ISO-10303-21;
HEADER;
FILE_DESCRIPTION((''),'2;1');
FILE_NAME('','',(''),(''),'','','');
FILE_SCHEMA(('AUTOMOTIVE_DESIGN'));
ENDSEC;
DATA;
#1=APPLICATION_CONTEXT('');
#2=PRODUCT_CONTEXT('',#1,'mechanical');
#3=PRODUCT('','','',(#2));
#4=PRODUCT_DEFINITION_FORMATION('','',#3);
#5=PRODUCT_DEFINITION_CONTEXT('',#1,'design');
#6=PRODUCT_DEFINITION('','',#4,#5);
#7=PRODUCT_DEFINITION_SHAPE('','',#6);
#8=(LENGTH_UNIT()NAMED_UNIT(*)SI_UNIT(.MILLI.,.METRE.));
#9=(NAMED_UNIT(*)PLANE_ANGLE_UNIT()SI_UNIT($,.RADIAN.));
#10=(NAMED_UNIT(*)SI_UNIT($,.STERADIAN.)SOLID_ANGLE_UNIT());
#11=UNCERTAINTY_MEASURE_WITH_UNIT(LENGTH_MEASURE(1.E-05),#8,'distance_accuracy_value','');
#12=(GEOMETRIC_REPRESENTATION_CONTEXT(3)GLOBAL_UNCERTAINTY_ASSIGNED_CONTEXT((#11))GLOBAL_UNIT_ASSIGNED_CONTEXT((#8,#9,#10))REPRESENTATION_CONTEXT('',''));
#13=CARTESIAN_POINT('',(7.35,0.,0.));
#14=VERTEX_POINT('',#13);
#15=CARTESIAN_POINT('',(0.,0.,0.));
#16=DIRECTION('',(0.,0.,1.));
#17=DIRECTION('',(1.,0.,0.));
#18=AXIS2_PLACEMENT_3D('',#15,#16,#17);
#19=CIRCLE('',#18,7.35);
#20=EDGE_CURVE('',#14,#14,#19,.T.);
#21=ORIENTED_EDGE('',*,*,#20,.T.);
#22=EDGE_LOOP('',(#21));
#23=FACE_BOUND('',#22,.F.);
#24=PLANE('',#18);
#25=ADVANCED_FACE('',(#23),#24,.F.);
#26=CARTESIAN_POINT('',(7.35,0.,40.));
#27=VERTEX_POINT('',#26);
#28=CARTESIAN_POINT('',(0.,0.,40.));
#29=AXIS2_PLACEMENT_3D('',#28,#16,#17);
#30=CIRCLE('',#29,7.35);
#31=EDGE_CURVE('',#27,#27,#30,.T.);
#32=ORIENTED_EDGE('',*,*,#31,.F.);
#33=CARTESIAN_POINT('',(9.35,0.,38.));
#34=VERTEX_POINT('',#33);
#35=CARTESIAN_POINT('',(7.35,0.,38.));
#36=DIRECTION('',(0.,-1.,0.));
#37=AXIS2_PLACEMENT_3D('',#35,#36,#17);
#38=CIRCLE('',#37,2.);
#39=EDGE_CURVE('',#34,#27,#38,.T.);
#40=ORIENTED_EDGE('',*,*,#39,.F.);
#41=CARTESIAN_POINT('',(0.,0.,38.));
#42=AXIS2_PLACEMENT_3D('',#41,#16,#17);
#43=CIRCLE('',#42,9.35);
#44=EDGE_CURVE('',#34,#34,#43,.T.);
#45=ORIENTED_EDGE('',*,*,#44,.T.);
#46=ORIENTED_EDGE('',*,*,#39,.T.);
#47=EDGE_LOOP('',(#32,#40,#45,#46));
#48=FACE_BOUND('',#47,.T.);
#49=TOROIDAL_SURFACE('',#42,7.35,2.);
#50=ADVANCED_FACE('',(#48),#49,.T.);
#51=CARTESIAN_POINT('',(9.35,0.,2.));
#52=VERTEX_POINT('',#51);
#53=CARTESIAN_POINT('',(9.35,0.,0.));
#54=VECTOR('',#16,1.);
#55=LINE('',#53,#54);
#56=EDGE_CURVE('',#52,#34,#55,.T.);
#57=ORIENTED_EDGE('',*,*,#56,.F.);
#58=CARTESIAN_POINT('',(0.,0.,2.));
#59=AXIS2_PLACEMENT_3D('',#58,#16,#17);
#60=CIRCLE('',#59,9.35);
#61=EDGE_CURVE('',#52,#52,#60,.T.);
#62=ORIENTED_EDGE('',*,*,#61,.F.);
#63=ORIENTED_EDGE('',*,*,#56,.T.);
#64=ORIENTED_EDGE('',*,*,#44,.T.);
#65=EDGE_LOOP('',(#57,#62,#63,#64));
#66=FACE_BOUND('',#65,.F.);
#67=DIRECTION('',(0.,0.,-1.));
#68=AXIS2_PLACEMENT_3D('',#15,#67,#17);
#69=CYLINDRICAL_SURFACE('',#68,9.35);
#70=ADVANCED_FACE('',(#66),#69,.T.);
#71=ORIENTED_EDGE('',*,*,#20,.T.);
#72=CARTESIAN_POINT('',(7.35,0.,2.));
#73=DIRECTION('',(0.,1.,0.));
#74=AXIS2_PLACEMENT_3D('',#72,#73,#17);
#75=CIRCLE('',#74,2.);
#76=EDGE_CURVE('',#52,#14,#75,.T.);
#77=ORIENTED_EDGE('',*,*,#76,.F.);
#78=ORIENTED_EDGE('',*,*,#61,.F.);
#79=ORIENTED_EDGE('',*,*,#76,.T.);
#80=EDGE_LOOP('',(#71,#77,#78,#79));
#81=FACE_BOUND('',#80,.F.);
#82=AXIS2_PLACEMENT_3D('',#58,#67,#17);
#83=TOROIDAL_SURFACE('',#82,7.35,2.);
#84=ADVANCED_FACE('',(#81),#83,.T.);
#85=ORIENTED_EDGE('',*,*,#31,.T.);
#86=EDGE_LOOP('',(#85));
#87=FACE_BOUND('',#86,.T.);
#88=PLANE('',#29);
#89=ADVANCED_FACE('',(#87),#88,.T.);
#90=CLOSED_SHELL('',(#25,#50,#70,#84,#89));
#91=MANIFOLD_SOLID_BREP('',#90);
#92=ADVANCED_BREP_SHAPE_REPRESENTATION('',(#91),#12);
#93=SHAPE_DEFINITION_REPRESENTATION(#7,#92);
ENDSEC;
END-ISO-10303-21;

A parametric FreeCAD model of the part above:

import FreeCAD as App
import Part
import Sketcher

V = App.Vector
Q = App.Units.Quantity


def edges_at(feature, points):
    """Names of the edges that pass closest to the given points."""
    edges = feature.Shape.Edges
    near = lambda p: min(range(len(edges)), key=lambda i: edges[i].distToShape(Part.Vertex(*p))[0])
    return sorted({f"Edge{near(p) + 1}" for p in points})

doc = App.newDocument("Part")
params = doc.addObject("Spreadsheet::Sheet", "Params")
for row, (alias, value) in enumerate([
    ("sketch1_diameter", "18.7 mm"),
    ("pad1_length", "40 mm"),
    ("fillet_radius", "2 mm"),
], start=1):
    params.set(f"A{row}", alias)
    params.set(f"B{row}", "=" + value)
    params.setAlias(f"B{row}", alias)

body = doc.addObject("PartDesign::Body", "Body")

sketch1 = body.newObject("Sketcher::SketchObject", "Sketch")
sketch1.AttachmentSupport = (doc.getObject("XY_Plane"), [""])
sketch1.MapMode = "FlatFace"
sketch1.addGeometry(Part.Circle(V(0, 0, 0), V(0, 0, 1), 9), False)
sketch1.addConstraint(Sketcher.Constraint("Coincident", 0, 3, -1, 1))
sketch1.addConstraint(Sketcher.Constraint("Diameter", 0, Q("18.7 mm")))
sketch1.setExpression("Constraints[1]", "Params.sketch1_diameter")
pad1 = body.newObject("PartDesign::Pad", "Pad")
pad1.Profile = sketch1
pad1.setExpression("Length", "Params.pad1_length")
doc.recompute()

fillet = body.newObject("PartDesign::Fillet", "Fillet")
fillet.Base = (pad1, edges_at(pad1, [(-9.35, 0, 0), (-9.35, 0, 40)]))
fillet.setExpression("Radius", "Params.fillet_radius")

doc.recompute()
